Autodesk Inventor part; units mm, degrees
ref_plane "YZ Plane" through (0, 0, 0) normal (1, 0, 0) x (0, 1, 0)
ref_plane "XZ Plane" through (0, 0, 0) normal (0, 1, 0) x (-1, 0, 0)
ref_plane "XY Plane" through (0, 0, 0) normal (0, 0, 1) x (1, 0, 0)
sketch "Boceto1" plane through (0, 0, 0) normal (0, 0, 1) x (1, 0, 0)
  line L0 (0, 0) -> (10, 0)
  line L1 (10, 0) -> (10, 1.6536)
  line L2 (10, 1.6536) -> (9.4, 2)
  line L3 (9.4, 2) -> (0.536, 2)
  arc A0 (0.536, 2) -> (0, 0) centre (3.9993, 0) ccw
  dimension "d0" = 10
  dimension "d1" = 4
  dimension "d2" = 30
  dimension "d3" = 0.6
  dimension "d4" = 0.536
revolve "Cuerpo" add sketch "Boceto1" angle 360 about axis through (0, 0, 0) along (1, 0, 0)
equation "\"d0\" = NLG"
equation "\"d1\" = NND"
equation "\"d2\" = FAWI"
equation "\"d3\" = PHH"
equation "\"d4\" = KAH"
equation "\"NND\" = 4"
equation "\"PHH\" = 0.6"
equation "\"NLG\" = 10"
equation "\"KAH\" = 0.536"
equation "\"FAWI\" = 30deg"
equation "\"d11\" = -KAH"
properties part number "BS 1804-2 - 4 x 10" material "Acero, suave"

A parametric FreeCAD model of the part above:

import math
import FreeCAD as App
import Part
import Sketcher

V = App.Vector
Q = App.Units.Quantity

doc = App.newDocument("Part")
params = doc.addObject("Spreadsheet::Sheet", "Params")
for row, (alias, value) in enumerate([
    ("sketch1_width", "10 mm"),
    ("revolution_angle", "360 deg"),
], start=1):
    params.set(f"A{row}", alias)
    params.set(f"B{row}", "=" + value)
    params.setAlias(f"B{row}", alias)

body = doc.addObject("PartDesign::Body", "Body")

# Sketch on XY plane
sketch1 = body.newObject("Sketcher::SketchObject", "Sketch")
sketch1.AttachmentSupport = (doc.getObject("XY_Plane"), [""])
sketch1.MapMode = "FlatFace"
sketch1.addGeometry(Part.ArcOfCircle(Part.Circle(V(4, 0, 0), V(0, 0, 1), 4), math.radians(150), math.radians(180)), False)
sketch1.addGeometry(Part.LineSegment(V(0, 0, 0), V(10, 0, 0)), False)
sketch1.addGeometry(Part.LineSegment(V(10, 0, 0), V(10, 1.7, 0)), False)
sketch1.addGeometry(Part.LineSegment(V(10, 1.7, 0), V(9.4, 2, 0)), False)
sketch1.addGeometry(Part.LineSegment(V(9.4, 2, 0), V(0.5, 2, 0)), False)
sketch1.addConstraint(Sketcher.Constraint("Coincident", 0, 2, 1, 1))
sketch1.addConstraint(Sketcher.Constraint("Coincident", 1, 2, 2, 1))
sketch1.addConstraint(Sketcher.Constraint("Coincident", 2, 2, 3, 1))
sketch1.addConstraint(Sketcher.Constraint("Coincident", 3, 2, 4, 1))
sketch1.addConstraint(Sketcher.Constraint("Coincident", 4, 2, 0, 1))
sketch1.addConstraint(Sketcher.Constraint("Horizontal", 1))
sketch1.addConstraint(Sketcher.Constraint("Vertical", 2))
sketch1.addConstraint(Sketcher.Constraint("Horizontal", 4))
sketch1.addConstraint(Sketcher.Constraint("Coincident", 0, 2, -1, 1))
sketch1.addConstraint(Sketcher.Constraint("PointOnObject", 0, 3, -1))
sketch1.addConstraint(Sketcher.Constraint("DistanceX", 1, 1, 1, 2, 10.0))
sketch1.addConstraint(Sketcher.Constraint("DistanceX", 3, 2, 2, 2, 0.6))
sketch1.addConstraint(Sketcher.Constraint("Angle", 3, Q("150.0007 deg")))
sketch1.addConstraint(Sketcher.Constraint("DistanceX", -1, 1, 4, 2, 0.536))
sketch1.addConstraint(Sketcher.Constraint("DistanceY", -1, 1, 3, 2, 2.0))
sketch1.setExpression("Constraints[10]", "Params.sketch1_width")
revolution = body.newObject("PartDesign::Revolution", "Revolution")
revolution.Profile = sketch1
revolution.ReferenceAxis = (sketch1, ["H_Axis"])
revolution.setExpression("Angle", "Params.revolution_angle")

doc.recompute()
